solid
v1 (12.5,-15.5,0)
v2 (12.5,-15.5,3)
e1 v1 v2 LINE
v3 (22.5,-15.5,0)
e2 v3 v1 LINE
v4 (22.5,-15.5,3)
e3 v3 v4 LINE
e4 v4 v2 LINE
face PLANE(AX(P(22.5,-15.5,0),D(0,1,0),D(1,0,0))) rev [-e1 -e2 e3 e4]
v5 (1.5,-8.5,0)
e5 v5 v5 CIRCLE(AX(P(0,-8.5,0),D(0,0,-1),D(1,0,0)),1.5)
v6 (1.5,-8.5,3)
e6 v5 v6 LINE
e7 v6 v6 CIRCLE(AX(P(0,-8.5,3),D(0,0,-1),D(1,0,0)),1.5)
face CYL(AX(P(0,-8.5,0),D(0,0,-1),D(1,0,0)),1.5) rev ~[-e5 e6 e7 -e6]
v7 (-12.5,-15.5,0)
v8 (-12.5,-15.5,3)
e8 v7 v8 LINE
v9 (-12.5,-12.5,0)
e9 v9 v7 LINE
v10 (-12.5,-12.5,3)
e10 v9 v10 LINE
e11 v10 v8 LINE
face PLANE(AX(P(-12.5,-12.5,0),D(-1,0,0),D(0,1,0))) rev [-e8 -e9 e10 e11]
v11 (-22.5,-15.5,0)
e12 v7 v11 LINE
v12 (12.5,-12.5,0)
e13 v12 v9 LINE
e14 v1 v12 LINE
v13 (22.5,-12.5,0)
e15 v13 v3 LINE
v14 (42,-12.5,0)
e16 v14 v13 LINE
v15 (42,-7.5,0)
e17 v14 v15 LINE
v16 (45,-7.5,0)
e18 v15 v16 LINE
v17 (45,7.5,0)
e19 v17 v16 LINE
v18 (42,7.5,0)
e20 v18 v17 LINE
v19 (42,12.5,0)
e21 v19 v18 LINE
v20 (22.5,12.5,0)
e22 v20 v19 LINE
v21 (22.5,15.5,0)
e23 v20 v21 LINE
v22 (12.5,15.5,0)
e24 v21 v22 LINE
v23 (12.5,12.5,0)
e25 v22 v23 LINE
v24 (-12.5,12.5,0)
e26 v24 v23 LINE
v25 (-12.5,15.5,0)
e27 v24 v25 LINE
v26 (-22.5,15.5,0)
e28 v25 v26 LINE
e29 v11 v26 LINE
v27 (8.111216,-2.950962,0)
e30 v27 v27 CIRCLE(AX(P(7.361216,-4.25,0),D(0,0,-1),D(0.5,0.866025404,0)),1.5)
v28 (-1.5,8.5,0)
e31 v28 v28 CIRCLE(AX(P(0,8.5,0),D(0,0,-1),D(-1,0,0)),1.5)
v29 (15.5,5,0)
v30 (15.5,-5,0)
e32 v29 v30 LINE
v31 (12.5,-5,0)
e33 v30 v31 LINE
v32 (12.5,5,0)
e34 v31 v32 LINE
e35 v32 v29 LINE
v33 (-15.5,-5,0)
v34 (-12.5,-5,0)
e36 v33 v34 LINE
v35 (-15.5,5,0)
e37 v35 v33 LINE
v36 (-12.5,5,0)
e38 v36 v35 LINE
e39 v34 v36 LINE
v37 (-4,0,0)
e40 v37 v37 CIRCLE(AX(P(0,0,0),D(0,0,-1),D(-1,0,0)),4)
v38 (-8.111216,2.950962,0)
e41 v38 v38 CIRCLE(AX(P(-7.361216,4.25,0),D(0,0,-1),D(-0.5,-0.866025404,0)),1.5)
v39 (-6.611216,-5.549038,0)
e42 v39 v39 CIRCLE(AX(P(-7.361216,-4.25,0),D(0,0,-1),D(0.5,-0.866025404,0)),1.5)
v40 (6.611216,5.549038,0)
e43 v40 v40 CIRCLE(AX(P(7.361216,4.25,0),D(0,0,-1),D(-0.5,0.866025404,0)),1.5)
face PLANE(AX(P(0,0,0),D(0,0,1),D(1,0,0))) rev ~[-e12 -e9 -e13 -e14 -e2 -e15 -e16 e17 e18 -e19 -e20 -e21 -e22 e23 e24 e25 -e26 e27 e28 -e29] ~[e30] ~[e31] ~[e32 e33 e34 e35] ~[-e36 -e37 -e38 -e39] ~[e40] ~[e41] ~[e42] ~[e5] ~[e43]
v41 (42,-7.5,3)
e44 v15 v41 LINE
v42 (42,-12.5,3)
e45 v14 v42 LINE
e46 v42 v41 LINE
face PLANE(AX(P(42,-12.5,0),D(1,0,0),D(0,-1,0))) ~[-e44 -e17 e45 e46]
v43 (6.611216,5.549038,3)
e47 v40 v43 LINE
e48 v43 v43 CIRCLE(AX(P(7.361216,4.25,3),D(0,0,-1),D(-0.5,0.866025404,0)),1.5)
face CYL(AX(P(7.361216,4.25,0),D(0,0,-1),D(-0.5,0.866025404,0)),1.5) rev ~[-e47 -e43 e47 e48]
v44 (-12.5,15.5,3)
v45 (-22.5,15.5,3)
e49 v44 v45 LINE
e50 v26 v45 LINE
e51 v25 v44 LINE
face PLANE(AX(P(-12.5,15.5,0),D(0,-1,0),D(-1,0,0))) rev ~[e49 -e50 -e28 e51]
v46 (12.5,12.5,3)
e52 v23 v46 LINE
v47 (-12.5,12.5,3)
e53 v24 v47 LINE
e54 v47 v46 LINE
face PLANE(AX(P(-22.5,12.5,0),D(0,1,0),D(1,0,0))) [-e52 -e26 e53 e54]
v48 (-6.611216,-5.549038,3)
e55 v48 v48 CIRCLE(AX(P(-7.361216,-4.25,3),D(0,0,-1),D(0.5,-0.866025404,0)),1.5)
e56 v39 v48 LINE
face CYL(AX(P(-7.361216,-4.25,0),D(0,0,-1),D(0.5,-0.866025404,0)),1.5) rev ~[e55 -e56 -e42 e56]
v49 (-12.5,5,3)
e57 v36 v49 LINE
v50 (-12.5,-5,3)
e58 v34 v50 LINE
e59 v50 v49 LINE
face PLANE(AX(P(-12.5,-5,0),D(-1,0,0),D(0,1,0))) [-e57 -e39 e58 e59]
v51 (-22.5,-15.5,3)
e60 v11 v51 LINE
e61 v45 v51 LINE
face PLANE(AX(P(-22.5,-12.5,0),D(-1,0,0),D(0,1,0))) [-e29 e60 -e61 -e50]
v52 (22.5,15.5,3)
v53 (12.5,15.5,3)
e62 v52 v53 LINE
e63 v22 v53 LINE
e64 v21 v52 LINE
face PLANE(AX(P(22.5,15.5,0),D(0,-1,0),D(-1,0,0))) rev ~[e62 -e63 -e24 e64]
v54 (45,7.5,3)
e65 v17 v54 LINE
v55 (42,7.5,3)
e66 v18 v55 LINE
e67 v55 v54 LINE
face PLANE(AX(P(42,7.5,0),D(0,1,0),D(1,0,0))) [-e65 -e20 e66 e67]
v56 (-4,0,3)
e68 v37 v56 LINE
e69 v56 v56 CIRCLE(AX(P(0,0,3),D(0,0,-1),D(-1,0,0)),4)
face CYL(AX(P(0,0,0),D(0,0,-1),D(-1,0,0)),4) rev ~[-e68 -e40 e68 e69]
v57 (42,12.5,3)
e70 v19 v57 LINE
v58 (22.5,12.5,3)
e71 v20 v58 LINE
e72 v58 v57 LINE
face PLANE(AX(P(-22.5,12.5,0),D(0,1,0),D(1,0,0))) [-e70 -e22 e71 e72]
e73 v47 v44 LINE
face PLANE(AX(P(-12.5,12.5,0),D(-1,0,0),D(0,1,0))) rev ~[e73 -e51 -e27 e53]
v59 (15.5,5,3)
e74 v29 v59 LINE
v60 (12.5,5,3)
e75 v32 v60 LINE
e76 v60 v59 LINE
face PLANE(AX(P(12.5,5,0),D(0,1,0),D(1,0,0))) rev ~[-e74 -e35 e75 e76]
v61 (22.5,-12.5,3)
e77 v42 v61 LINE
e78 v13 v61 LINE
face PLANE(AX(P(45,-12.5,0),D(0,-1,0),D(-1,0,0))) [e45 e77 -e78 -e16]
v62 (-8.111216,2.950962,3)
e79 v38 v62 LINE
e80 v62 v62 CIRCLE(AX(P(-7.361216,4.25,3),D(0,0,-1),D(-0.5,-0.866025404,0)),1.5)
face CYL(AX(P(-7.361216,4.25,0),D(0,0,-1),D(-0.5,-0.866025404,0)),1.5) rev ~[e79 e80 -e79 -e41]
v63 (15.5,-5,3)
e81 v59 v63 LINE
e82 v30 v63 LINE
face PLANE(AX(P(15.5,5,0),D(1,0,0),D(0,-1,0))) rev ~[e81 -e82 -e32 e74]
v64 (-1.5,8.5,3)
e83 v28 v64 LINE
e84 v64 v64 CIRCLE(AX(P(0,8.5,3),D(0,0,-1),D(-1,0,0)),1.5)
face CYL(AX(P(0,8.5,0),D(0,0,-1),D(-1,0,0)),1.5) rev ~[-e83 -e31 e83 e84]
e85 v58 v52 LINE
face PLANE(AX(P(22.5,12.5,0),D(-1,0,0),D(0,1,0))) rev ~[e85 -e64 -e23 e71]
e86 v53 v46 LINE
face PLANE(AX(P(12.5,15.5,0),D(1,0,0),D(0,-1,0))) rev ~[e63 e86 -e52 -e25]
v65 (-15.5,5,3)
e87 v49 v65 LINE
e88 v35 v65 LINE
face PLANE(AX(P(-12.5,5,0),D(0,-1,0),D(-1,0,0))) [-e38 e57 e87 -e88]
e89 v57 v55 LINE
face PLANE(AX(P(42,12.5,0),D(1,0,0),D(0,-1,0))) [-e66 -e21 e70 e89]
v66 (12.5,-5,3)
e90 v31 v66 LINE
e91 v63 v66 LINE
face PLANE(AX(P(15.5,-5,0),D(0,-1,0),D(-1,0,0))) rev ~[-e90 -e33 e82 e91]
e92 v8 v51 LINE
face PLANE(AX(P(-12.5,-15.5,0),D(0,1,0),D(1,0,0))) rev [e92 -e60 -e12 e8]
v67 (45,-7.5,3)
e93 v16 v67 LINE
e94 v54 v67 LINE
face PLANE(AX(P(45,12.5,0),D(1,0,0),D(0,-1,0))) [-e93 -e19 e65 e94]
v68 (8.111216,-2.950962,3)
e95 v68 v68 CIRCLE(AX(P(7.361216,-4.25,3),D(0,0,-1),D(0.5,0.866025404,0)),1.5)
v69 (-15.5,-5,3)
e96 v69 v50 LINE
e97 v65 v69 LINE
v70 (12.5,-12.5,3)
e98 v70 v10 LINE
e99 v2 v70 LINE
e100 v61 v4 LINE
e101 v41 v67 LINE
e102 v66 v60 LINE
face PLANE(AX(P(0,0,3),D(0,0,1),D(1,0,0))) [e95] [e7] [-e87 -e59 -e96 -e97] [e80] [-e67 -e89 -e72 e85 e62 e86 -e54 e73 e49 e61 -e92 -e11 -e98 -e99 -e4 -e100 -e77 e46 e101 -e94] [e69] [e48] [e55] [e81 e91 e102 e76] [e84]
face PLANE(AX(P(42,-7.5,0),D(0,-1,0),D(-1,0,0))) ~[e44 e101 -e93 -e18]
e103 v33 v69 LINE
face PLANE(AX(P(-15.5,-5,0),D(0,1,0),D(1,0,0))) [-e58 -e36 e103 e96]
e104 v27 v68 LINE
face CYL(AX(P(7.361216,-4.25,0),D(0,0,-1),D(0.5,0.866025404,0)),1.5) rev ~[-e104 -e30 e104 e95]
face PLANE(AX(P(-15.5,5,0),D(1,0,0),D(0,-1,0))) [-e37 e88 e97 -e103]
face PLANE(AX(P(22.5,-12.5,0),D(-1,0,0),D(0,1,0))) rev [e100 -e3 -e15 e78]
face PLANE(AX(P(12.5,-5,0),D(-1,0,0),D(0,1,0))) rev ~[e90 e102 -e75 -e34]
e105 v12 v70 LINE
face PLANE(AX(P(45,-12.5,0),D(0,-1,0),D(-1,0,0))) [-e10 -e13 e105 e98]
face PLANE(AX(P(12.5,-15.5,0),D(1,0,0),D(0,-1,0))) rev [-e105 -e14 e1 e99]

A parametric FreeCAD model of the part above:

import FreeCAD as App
import Part
import Sketcher

doc = App.newDocument("Part")
params = doc.addObject("Spreadsheet::Sheet", "Params")
for row, (alias, value) in enumerate([
    ("sketch1_height", "25 mm"),
    ("sketch1_width", "67.5 mm"),
    ("pad1_length", "3 mm"),
    ("sketch2_width", "10 mm"),
    ("sketch2_height", "3 mm"),
    ("pad2_length", "3 mm"),
    ("sketch3_width", "3 mm"),
    ("sketch3_height", "5 mm"),
    ("pocket1_length", "3 mm"),
    ("sketch4_diameter", "8 mm"),
    ("pocket2_length", "3 mm"),
    ("sketch5_diameter", "3 mm"),
    ("pocket3_length", "3 mm"),
    ("sketch6_width", "3 mm"),
    ("sketch6_height", "10 mm"),
    ("pocket4_length", "3 mm"),
], start=1):
    params.set(f"A{row}", alias)
    params.set(f"B{row}", "=" + value)
    params.setAlias(f"B{row}", alias)

body = doc.addObject("PartDesign::Body", "Body")

sketch1 = body.newObject("Sketcher::SketchObject", "Sketch")
sketch1.AttachmentSupport = (doc.getObject("XY_Plane"), [""])
sketch1.MapMode = "FlatFace"
sketch1.addGeometry([
    Part.LineSegment(App.Vector(45, 12, 0), App.Vector(-22, 12, 0)),
    Part.LineSegment(App.Vector(-22, 12, 0), App.Vector(-22, -12, 0)),
    Part.LineSegment(App.Vector(-22, -12, 0), App.Vector(45, -12, 0)),
    Part.LineSegment(App.Vector(45, -12, 0), App.Vector(45, 12, 0)),
], False)
sketch1.addConstraint([
    Sketcher.Constraint("Coincident", 0, 2, 1, 1),
    Sketcher.Constraint("Coincident", 1, 2, 2, 1),
    Sketcher.Constraint("Coincident", 2, 2, 3, 1),
    Sketcher.Constraint("Coincident", 3, 2, 0, 1),
    Sketcher.Constraint("Horizontal", 0),
    Sketcher.Constraint("Vertical", 1),
    Sketcher.Constraint("Horizontal", 2),
    Sketcher.Constraint("Vertical", 3),
    Sketcher.Constraint("DistanceY", 1, 2, 1, 1, 25.0),
    Sketcher.Constraint("DistanceX", 0, 2, 0, 1, 67.5),
    Sketcher.Constraint("DistanceX", -1, 1, 2, 2, 45.0),
    Sketcher.Constraint("DistanceY", -1, 1, 0, 2, 12.5),
])
sketch1.setExpression("Constraints[8]", "Params.sketch1_height")
sketch1.setExpression("Constraints[9]", "Params.sketch1_width")
pad1 = body.newObject("PartDesign::Pad", "Pad")
pad1.Profile = sketch1
pad1.setExpression("Length", "Params.pad1_length")

sketch2 = body.newObject("Sketcher::SketchObject", "Sketch001")
sketch2.AttachmentSupport = (doc.getObject("XY_Plane"), [""])
sketch2.MapMode = "FlatFace"
sketch2.addGeometry([
    Part.LineSegment(App.Vector(-12.5, 12.5, 0), App.Vector(-22.5, 12.5, 0)),
    Part.LineSegment(App.Vector(-22.5, 12.5, 0), App.Vector(-22.5, 15.5, 0)),
    Part.LineSegment(App.Vector(-22.5, 15.5, 0), App.Vector(-12.5, 15.5, 0)),
    Part.LineSegment(App.Vector(-12.5, 15.5, 0), App.Vector(-12.5, 12.5, 0)),
    Part.LineSegment(App.Vector(22.5, 12.5, 0), App.Vector(12.5, 12.5, 0)),
    Part.LineSegment(App.Vector(12.5, 12.5, 0), App.Vector(12.5, 15.5, 0)),
    Part.LineSegment(App.Vector(12.5, 15.5, 0), App.Vector(22.5, 15.5, 0)),
    Part.LineSegment(App.Vector(22.5, 15.5, 0), App.Vector(22.5, 12.5, 0)),
], False)
sketch2.addConstraint([
    Sketcher.Constraint("Coincident", 0, 2, 1, 1),
    Sketcher.Constraint("Coincident", 1, 2, 2, 1),
    Sketcher.Constraint("Coincident", 2, 2, 3, 1),
    Sketcher.Constraint("Coincident", 3, 2, 0, 1),
    Sketcher.Constraint("Coincident", 4, 2, 5, 1),
    Sketcher.Constraint("Coincident", 5, 2, 6, 1),
    Sketcher.Constraint("Coincident", 6, 2, 7, 1),
    Sketcher.Constraint("Coincident", 7, 2, 4, 1),
    Sketcher.Constraint("Horizontal", 0),
    Sketcher.Constraint("Vertical", 1),
    Sketcher.Constraint("Horizontal", 2),
    Sketcher.Constraint("Vertical", 3),
    Sketcher.Constraint("Horizontal", 4),
    Sketcher.Constraint("Vertical", 5),
    Sketcher.Constraint("Horizontal", 6),
    Sketcher.Constraint("Vertical", 7),
    Sketcher.Constraint("Symmetric", 3, 2, 4, 2, -2),
    Sketcher.Constraint("Symmetric", 1, 2, 6, 2, -2),
    Sketcher.Constraint("DistanceX", 0, 2, 0, 1, 10.0),
    Sketcher.Constraint("DistanceY", 1, 1, 1, 2, 3.0),
    Sketcher.Constraint("DistanceX", 3, 2, 4, 2, 25.0),
    Sketcher.Constraint("DistanceY", -1, 1, 0, 2, 12.5),
])
sketch2.setExpression("Constraints[18]", "Params.sketch2_width")
sketch2.setExpression("Constraints[19]", "Params.sketch2_height")
pad2 = body.newObject("PartDesign::Pad", "Pad001")
pad2.Profile = sketch2
pad2.setExpression("Length", "Params.pad2_length")

sketch3 = body.newObject("Sketcher::SketchObject", "Sketch002")
sketch3.AttachmentSupport = (doc.getObject("XY_Plane"), [""])
sketch3.MapMode = "FlatFace"
sketch3.addGeometry([
    Part.LineSegment(App.Vector(42, 12.5, 0), App.Vector(45, 12.5, 0)),
    Part.LineSegment(App.Vector(45, 12.5, 0), App.Vector(45, 7.5, 0)),
    Part.LineSegment(App.Vector(45, 7.5, 0), App.Vector(42, 7.5, 0)),
    Part.LineSegment(App.Vector(42, 7.5, 0), App.Vector(42, 12.5, 0)),
], False)
sketch3.addConstraint([
    Sketcher.Constraint("Coincident", 0, 2, 1, 1),
    Sketcher.Constraint("Coincident", 1, 2, 2, 1),
    Sketcher.Constraint("Coincident", 2, 2, 3, 1),
    Sketcher.Constraint("Coincident", 3, 2, 0, 1),
    Sketcher.Constraint("Horizontal", 0),
    Sketcher.Constraint("Vertical", 1),
    Sketcher.Constraint("Horizontal", 2),
    Sketcher.Constraint("Vertical", 3),
    Sketcher.Constraint("DistanceX", 0, 1, 0, 2, 3.0),
    Sketcher.Constraint("DistanceY", 1, 2, 1, 1, 5.0),
    Sketcher.Constraint("DistanceX", -1, 1, 0, 2, 45.0),
    Sketcher.Constraint("DistanceY", -1, 1, 0, 2, 12.5),
])
sketch3.setExpression("Constraints[8]", "Params.sketch3_width")
sketch3.setExpression("Constraints[9]", "Params.sketch3_height")
pocket1 = body.newObject("PartDesign::Pocket", "Pocket")
pocket1.Profile = sketch3
pocket1.setExpression("Length", "Params.pocket1_length")
pocket1.Reversed = True

sketch4 = body.newObject("Sketcher::SketchObject", "Sketch003")
sketch4.AttachmentSupport = (doc.getObject("XY_Plane"), [""])
sketch4.MapMode = "FlatFace"
sketch4.addGeometry(Part.Circle(App.Vector(0, 0, 0), App.Vector(0, 0, 1), 4), False)
sketch4.addConstraint([
    Sketcher.Constraint("Coincident", 0, 3, -1, 1),
    Sketcher.Constraint("Diameter", 0, 8.0),
])
sketch4.setExpression("Constraints[1]", "Params.sketch4_diameter")
pocket2 = body.newObject("PartDesign::Pocket", "Pocket001")
pocket2.Profile = sketch4
pocket2.setExpression("Length", "Params.pocket2_length")
pocket2.Reversed = True

sketch5 = body.newObject("Sketcher::SketchObject", "Sketch004")
sketch5.AttachmentSupport = (doc.getObject("XY_Plane"), [""])
sketch5.MapMode = "FlatFace"
sketch5.addGeometry(Part.Circle(App.Vector(0, 8.5, 0), App.Vector(0, 0, 1), 1.5), False)
sketch5.addConstraint([
    Sketcher.Constraint("PointOnObject", 0, 3, -2),
    Sketcher.Constraint("Diameter", 0, 3.0),
    Sketcher.Constraint("DistanceY", -1, 1, 0, 3, 8.5),
])
sketch5.setExpression("Constraints[1]", "Params.sketch5_diameter")
pocket3 = body.newObject("PartDesign::Pocket", "Pocket002")
pocket3.Profile = sketch5
pocket3.setExpression("Length", "Params.pocket3_length")
pocket3.Reversed = True
doc.recompute()

mirrored = body.newObject("PartDesign::Mirrored", "Mirrored")
mirrored.Originals = [pad2, pocket1]
mirrored.MirrorPlane = (doc.getObject("XZ_Plane"), [""])
body.Tip = mirrored
doc.recompute()

polarpattern = body.newObject("PartDesign::PolarPattern", "PolarPattern")
polarpattern.Originals = [pocket3]
polarpattern.Axis = (doc.getObject("Z_Axis"), [""])
polarpattern.Angle = 360
polarpattern.Occurrences = 6
body.Tip = polarpattern

sketch6 = body.newObject("Sketcher::SketchObject", "Sketch005")
sketch6.AttachmentSupport = (doc.getObject("XY_Plane"), [""])
sketch6.MapMode = "FlatFace"
sketch6.addGeometry([
    Part.LineSegment(App.Vector(-15.5, 5, 0), App.Vector(-12.5, 5, 0)),
    Part.LineSegment(App.Vector(-12.5, 5, 0), App.Vector(-12.5, -5, 0)),
    Part.LineSegment(App.Vector(-12.5, -5, 0), App.Vector(-15.5, -5, 0)),
    Part.LineSegment(App.Vector(-15.5, -5, 0), App.Vector(-15.5, 5, 0)),
    Part.LineSegment(App.Vector(12.5, -5, 0), App.Vector(12.5, 5, 0)),
    Part.LineSegment(App.Vector(12.5, 5, 0), App.Vector(15.5, 5, 0)),
    Part.LineSegment(App.Vector(15.5, 5, 0), App.Vector(15.5, -5, 0)),
    Part.LineSegment(App.Vector(15.5, -5, 0), App.Vector(12.5, -5, 0)),
], False)
sketch6.addConstraint([
    Sketcher.Constraint("Coincident", 0, 2, 1, 1),
    Sketcher.Constraint("Coincident", 1, 2, 2, 1),
    Sketcher.Constraint("Coincident", 2, 2, 3, 1),
    Sketcher.Constraint("Coincident", 3, 2, 0, 1),
    Sketcher.Constraint("Coincident", 4, 2, 5, 1),
    Sketcher.Constraint("Coincident", 5, 2, 6, 1),
    Sketcher.Constraint("Coincident", 6, 2, 7, 1),
    Sketcher.Constraint("Coincident", 7, 2, 4, 1),
    Sketcher.Constraint("Horizontal", 0),
    Sketcher.Constraint("Vertical", 1),
    Sketcher.Constraint("Horizontal", 2),
    Sketcher.Constraint("Vertical", 3),
    Sketcher.Constraint("Vertical", 4),
    Sketcher.Constraint("Horizontal", 5),
    Sketcher.Constraint("Vertical", 6),
    Sketcher.Constraint("Horizontal", 7),
    Sketcher.Constraint("Symmetric", 1, 2, 4, 2, -1, 1),
    Sketcher.Constraint("Symmetric", 3, 2, 6, 2, -1, 1),
    Sketcher.Constraint("Horizontal", 3, 2, 4, 2),
    Sketcher.Constraint("DistanceX", 0, 1, 0, 2, 3.0),
    Sketcher.Constraint("DistanceY", 1, 2, 1, 1, 10.0),
    Sketcher.Constraint("DistanceX", 0, 2, 4, 2, 25.0),
])
sketch6.setExpression("Constraints[19]", "Params.sketch6_width")
sketch6.setExpression("Constraints[20]", "Params.sketch6_height")
pocket4 = body.newObject("PartDesign::Pocket", "Pocket003")
pocket4.Profile = sketch6
pocket4.setExpression("Length", "Params.pocket4_length")
pocket4.Reversed = True

doc.recompute()
